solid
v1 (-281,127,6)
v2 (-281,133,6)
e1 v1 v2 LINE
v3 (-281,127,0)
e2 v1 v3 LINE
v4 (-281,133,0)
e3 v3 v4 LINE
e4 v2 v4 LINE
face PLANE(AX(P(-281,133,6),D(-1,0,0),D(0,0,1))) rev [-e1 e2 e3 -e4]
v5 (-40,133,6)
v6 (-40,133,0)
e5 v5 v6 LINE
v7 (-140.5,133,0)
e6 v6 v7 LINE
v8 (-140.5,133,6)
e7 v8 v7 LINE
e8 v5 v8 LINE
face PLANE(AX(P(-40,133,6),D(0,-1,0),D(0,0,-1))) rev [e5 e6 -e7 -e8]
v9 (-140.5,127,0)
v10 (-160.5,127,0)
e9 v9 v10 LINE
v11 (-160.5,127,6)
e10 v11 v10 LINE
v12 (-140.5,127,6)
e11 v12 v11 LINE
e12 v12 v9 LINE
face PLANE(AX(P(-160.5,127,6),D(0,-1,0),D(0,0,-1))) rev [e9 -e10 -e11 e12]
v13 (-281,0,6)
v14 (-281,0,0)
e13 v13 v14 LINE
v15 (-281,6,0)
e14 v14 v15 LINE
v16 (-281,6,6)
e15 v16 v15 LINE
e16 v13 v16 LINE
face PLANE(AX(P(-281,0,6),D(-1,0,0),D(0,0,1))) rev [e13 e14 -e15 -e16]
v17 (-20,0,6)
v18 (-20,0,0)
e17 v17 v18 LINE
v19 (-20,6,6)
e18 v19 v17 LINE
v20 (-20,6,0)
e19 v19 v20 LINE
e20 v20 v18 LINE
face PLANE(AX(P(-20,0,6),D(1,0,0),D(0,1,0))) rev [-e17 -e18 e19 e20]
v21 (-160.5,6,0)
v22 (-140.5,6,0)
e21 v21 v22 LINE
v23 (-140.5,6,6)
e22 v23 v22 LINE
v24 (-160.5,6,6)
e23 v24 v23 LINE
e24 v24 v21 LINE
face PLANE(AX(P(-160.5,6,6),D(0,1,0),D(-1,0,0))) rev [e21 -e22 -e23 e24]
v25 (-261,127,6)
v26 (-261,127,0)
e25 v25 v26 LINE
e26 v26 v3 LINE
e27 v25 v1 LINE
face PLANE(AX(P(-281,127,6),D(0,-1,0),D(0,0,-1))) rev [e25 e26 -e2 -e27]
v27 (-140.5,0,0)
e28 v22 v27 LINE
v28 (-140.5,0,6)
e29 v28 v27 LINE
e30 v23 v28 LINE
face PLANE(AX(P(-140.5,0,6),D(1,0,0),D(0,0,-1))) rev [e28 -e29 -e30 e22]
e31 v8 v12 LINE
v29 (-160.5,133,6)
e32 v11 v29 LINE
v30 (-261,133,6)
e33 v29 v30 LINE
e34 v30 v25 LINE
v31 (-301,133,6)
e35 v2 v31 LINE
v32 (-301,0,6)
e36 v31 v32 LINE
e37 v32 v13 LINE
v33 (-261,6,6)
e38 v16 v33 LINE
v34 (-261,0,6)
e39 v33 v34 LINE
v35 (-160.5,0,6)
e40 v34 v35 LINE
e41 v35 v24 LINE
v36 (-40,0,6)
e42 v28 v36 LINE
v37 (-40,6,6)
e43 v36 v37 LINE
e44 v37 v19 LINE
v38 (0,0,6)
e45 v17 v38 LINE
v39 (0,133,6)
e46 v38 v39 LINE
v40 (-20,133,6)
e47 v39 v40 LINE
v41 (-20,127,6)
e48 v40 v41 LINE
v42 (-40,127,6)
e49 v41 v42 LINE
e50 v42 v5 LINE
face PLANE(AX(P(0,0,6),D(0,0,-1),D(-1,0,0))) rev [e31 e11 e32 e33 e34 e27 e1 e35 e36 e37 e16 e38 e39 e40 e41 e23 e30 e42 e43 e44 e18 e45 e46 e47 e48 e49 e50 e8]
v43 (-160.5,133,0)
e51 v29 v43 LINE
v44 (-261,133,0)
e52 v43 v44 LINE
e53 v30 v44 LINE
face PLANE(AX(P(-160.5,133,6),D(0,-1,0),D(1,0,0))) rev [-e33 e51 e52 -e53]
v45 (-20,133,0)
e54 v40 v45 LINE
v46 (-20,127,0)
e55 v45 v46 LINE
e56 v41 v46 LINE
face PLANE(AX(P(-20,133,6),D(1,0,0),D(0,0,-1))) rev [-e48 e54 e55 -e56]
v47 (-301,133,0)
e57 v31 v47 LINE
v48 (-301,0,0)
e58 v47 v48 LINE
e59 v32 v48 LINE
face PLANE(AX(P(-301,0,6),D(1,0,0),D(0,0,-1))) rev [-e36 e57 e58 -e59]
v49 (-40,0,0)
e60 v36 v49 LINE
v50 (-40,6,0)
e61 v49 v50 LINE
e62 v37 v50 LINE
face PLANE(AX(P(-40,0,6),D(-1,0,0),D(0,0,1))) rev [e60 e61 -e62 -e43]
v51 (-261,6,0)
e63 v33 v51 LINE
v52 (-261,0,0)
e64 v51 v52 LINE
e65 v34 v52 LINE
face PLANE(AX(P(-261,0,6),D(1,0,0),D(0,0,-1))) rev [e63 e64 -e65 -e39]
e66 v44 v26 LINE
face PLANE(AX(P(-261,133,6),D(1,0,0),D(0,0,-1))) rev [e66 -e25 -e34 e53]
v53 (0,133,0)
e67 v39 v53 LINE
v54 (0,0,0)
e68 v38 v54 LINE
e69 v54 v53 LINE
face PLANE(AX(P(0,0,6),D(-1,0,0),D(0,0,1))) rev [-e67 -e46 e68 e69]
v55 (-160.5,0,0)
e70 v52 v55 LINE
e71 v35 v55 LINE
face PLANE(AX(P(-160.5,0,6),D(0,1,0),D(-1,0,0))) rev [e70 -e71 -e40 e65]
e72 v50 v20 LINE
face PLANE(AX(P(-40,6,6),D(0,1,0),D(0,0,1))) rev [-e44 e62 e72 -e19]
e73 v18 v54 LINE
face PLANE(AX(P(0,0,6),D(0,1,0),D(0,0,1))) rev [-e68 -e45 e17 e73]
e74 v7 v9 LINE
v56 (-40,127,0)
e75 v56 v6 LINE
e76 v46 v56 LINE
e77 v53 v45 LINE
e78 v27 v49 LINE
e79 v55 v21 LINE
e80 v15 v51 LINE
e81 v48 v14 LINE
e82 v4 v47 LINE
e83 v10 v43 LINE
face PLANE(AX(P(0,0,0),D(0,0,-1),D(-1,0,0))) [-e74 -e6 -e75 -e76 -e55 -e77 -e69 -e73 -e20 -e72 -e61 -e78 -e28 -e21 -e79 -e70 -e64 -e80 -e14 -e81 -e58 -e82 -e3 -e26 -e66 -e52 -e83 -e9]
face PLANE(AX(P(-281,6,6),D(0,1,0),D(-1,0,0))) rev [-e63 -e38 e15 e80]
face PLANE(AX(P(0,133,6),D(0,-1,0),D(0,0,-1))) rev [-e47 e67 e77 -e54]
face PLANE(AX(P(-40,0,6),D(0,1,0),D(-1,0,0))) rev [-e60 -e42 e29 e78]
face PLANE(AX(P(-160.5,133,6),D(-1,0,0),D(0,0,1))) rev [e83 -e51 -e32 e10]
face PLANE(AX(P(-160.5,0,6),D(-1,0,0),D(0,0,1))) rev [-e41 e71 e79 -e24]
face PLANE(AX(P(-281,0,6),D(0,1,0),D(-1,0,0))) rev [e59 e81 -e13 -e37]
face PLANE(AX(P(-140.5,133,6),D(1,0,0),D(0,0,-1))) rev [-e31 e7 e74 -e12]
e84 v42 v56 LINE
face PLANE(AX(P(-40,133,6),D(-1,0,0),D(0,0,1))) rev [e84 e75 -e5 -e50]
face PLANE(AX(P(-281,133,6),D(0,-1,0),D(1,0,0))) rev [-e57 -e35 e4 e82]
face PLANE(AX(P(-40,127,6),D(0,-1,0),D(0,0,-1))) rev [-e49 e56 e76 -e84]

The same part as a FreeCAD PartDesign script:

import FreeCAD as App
import Part
import Sketcher
Q = App.Units.Quantity


def add_polygon(sketch, points):
    """Adds a closed chain of lines whose ends are joined by coincident constraints."""
    first, n = sketch.GeometryCount, len(points)
    for a, b in zip(points, points[1:] + points[:1]):
        sketch.addGeometry(Part.LineSegment(App.Vector(*a, 0), App.Vector(*b, 0)), False)
    for i in range(n):
        sketch.addConstraint(Sketcher.Constraint("Coincident", first + i, 2, first + (i + 1) % n, 1))

doc = App.newDocument("Part")
body = doc.addObject("PartDesign::Body", "Body")

# Sketch on XY plane
sketch1 = body.newObject("Sketcher::SketchObject", "Sketch")
sketch1.AttachmentSupport = (doc.getObject("XY_Plane"), [""])
sketch1.MapMode = "FlatFace"
add_polygon(sketch1, [(-20, 6), (-20, 0), (0, 0), (0, 133), (-20, 133), (-20, 127), (-40, 127), (-40, 133), (-140, 133), (-140, 127), (-160, 127), (-160, 133), (-261, 133), (-261, 127), (-281, 127), (-281, 133), (-301, 133), (-301, 0), (-281, 0), (-281, 6), (-261, 6), (-261, 0), (-160, 0), (-160, 6), (-140, 6), (-140, 0), (-40, 0), (-40, 6)])  # lines 0-27
sketch1.addConstraint(Sketcher.Constraint("Vertical", 0))
sketch1.addConstraint(Sketcher.Constraint("Horizontal", 1))
sketch1.addConstraint(Sketcher.Constraint("Vertical", 2))
sketch1.addConstraint(Sketcher.Constraint("Horizontal", 3))
sketch1.addConstraint(Sketcher.Constraint("Vertical", 4))
sketch1.addConstraint(Sketcher.Constraint("Horizontal", 5))
sketch1.addConstraint(Sketcher.Constraint("Vertical", 6))
sketch1.addConstraint(Sketcher.Constraint("Horizontal", 7))
sketch1.addConstraint(Sketcher.Constraint("Vertical", 8))
sketch1.addConstraint(Sketcher.Constraint("Horizontal", 9))
sketch1.addConstraint(Sketcher.Constraint("Vertical", 10))
sketch1.addConstraint(Sketcher.Constraint("Horizontal", 11))
sketch1.addConstraint(Sketcher.Constraint("Vertical", 12))
sketch1.addConstraint(Sketcher.Constraint("Horizontal", 13))
sketch1.addConstraint(Sketcher.Constraint("Vertical", 14))
sketch1.addConstraint(Sketcher.Constraint("Horizontal", 15))
sketch1.addConstraint(Sketcher.Constraint("Vertical", 16))
sketch1.addConstraint(Sketcher.Constraint("Horizontal", 17))
sketch1.addConstraint(Sketcher.Constraint("Vertical", 18))
sketch1.addConstraint(Sketcher.Constraint("Horizontal", 19))
sketch1.addConstraint(Sketcher.Constraint("Vertical", 20))
sketch1.addConstraint(Sketcher.Constraint("Horizontal", 21))
sketch1.addConstraint(Sketcher.Constraint("Vertical", 22))
sketch1.addConstraint(Sketcher.Constraint("Horizontal", 23))
sketch1.addConstraint(Sketcher.Constraint("Vertical", 24))
sketch1.addConstraint(Sketcher.Constraint("Horizontal", 25))
sketch1.addConstraint(Sketcher.Constraint("Vertical", 26))
sketch1.addConstraint(Sketcher.Constraint("Horizontal", 27))
sketch1.addConstraint(Sketcher.Constraint("Coincident", 1, 2, -1, 1))
sketch1.addConstraint(Sketcher.Constraint("PointOnObject", 16, 2, -1))
sketch1.addConstraint(Sketcher.Constraint("PointOnObject", 20, 2, -1))
sketch1.addConstraint(Sketcher.Constraint("PointOnObject", 24, 2, -1))
sketch1.addConstraint(Sketcher.Constraint("Horizontal", 3, 2, 6, 2))
sketch1.addConstraint(Sketcher.Constraint("Horizontal", 5, 2, 8, 2))
sketch1.addConstraint(Sketcher.Constraint("Horizontal", 7, 2, 10, 2))
sketch1.addConstraint(Sketcher.Constraint("Horizontal", 9, 2, 12, 2))
sketch1.addConstraint(Sketcher.Constraint("Horizontal", 11, 2, 14, 2))
sketch1.addConstraint(Sketcher.Constraint("Horizontal", 19, 2, 22, 2))
sketch1.addConstraint(Sketcher.Constraint("Horizontal", 23, 2, 26, 2))
sketch1.addConstraint(Sketcher.Constraint("Vertical", 0, 2, 3, 2))
sketch1.addConstraint(Sketcher.Constraint("Vertical", 14, 2, 17, 2))
sketch1.addConstraint(Sketcher.Constraint("Vertical", 12, 2, 19, 2))
sketch1.addConstraint(Sketcher.Constraint("Vertical", 10, 2, 21, 2))
sketch1.addConstraint(Sketcher.Constraint("Vertical", 8, 2, 23, 2))
sketch1.addConstraint(Sketcher.Constraint("Vertical", 6, 2, 25, 2))
sketch1.addConstraint(Sketcher.Constraint("Equal", 3, 5))
sketch1.addConstraint(Sketcher.Constraint("Equal", 5, 9))
sketch1.addConstraint(Sketcher.Constraint("Equal", 7, 11))
sketch1.addConstraint(Sketcher.Constraint("Equal", 9, 13))
sketch1.addConstraint(Sketcher.Constraint("Equal", 13, 15))
sketch1.addConstraint(Sketcher.Constraint("Equal", 0, 4))
sketch1.addConstraint(Sketcher.Constraint("DistanceX", 1, 1, 1, 2, Q("20 mm")))
sketch1.addConstraint(Sketcher.Constraint("DistanceY", 0, 2, 0, 1, Q("6 mm")))
sketch1.addConstraint(Sketcher.Constraint("DistanceY", 2, 1, 2, 2, Q("133 mm")))
sketch1.addConstraint(Sketcher.Constraint("DistanceX", 7, 2, 7, 1, Q("100.5 mm")))
pad1 = body.newObject("PartDesign::Pad", "Pad")
pad1.Profile = sketch1
pad1.Length = 6

doc.recompute()
